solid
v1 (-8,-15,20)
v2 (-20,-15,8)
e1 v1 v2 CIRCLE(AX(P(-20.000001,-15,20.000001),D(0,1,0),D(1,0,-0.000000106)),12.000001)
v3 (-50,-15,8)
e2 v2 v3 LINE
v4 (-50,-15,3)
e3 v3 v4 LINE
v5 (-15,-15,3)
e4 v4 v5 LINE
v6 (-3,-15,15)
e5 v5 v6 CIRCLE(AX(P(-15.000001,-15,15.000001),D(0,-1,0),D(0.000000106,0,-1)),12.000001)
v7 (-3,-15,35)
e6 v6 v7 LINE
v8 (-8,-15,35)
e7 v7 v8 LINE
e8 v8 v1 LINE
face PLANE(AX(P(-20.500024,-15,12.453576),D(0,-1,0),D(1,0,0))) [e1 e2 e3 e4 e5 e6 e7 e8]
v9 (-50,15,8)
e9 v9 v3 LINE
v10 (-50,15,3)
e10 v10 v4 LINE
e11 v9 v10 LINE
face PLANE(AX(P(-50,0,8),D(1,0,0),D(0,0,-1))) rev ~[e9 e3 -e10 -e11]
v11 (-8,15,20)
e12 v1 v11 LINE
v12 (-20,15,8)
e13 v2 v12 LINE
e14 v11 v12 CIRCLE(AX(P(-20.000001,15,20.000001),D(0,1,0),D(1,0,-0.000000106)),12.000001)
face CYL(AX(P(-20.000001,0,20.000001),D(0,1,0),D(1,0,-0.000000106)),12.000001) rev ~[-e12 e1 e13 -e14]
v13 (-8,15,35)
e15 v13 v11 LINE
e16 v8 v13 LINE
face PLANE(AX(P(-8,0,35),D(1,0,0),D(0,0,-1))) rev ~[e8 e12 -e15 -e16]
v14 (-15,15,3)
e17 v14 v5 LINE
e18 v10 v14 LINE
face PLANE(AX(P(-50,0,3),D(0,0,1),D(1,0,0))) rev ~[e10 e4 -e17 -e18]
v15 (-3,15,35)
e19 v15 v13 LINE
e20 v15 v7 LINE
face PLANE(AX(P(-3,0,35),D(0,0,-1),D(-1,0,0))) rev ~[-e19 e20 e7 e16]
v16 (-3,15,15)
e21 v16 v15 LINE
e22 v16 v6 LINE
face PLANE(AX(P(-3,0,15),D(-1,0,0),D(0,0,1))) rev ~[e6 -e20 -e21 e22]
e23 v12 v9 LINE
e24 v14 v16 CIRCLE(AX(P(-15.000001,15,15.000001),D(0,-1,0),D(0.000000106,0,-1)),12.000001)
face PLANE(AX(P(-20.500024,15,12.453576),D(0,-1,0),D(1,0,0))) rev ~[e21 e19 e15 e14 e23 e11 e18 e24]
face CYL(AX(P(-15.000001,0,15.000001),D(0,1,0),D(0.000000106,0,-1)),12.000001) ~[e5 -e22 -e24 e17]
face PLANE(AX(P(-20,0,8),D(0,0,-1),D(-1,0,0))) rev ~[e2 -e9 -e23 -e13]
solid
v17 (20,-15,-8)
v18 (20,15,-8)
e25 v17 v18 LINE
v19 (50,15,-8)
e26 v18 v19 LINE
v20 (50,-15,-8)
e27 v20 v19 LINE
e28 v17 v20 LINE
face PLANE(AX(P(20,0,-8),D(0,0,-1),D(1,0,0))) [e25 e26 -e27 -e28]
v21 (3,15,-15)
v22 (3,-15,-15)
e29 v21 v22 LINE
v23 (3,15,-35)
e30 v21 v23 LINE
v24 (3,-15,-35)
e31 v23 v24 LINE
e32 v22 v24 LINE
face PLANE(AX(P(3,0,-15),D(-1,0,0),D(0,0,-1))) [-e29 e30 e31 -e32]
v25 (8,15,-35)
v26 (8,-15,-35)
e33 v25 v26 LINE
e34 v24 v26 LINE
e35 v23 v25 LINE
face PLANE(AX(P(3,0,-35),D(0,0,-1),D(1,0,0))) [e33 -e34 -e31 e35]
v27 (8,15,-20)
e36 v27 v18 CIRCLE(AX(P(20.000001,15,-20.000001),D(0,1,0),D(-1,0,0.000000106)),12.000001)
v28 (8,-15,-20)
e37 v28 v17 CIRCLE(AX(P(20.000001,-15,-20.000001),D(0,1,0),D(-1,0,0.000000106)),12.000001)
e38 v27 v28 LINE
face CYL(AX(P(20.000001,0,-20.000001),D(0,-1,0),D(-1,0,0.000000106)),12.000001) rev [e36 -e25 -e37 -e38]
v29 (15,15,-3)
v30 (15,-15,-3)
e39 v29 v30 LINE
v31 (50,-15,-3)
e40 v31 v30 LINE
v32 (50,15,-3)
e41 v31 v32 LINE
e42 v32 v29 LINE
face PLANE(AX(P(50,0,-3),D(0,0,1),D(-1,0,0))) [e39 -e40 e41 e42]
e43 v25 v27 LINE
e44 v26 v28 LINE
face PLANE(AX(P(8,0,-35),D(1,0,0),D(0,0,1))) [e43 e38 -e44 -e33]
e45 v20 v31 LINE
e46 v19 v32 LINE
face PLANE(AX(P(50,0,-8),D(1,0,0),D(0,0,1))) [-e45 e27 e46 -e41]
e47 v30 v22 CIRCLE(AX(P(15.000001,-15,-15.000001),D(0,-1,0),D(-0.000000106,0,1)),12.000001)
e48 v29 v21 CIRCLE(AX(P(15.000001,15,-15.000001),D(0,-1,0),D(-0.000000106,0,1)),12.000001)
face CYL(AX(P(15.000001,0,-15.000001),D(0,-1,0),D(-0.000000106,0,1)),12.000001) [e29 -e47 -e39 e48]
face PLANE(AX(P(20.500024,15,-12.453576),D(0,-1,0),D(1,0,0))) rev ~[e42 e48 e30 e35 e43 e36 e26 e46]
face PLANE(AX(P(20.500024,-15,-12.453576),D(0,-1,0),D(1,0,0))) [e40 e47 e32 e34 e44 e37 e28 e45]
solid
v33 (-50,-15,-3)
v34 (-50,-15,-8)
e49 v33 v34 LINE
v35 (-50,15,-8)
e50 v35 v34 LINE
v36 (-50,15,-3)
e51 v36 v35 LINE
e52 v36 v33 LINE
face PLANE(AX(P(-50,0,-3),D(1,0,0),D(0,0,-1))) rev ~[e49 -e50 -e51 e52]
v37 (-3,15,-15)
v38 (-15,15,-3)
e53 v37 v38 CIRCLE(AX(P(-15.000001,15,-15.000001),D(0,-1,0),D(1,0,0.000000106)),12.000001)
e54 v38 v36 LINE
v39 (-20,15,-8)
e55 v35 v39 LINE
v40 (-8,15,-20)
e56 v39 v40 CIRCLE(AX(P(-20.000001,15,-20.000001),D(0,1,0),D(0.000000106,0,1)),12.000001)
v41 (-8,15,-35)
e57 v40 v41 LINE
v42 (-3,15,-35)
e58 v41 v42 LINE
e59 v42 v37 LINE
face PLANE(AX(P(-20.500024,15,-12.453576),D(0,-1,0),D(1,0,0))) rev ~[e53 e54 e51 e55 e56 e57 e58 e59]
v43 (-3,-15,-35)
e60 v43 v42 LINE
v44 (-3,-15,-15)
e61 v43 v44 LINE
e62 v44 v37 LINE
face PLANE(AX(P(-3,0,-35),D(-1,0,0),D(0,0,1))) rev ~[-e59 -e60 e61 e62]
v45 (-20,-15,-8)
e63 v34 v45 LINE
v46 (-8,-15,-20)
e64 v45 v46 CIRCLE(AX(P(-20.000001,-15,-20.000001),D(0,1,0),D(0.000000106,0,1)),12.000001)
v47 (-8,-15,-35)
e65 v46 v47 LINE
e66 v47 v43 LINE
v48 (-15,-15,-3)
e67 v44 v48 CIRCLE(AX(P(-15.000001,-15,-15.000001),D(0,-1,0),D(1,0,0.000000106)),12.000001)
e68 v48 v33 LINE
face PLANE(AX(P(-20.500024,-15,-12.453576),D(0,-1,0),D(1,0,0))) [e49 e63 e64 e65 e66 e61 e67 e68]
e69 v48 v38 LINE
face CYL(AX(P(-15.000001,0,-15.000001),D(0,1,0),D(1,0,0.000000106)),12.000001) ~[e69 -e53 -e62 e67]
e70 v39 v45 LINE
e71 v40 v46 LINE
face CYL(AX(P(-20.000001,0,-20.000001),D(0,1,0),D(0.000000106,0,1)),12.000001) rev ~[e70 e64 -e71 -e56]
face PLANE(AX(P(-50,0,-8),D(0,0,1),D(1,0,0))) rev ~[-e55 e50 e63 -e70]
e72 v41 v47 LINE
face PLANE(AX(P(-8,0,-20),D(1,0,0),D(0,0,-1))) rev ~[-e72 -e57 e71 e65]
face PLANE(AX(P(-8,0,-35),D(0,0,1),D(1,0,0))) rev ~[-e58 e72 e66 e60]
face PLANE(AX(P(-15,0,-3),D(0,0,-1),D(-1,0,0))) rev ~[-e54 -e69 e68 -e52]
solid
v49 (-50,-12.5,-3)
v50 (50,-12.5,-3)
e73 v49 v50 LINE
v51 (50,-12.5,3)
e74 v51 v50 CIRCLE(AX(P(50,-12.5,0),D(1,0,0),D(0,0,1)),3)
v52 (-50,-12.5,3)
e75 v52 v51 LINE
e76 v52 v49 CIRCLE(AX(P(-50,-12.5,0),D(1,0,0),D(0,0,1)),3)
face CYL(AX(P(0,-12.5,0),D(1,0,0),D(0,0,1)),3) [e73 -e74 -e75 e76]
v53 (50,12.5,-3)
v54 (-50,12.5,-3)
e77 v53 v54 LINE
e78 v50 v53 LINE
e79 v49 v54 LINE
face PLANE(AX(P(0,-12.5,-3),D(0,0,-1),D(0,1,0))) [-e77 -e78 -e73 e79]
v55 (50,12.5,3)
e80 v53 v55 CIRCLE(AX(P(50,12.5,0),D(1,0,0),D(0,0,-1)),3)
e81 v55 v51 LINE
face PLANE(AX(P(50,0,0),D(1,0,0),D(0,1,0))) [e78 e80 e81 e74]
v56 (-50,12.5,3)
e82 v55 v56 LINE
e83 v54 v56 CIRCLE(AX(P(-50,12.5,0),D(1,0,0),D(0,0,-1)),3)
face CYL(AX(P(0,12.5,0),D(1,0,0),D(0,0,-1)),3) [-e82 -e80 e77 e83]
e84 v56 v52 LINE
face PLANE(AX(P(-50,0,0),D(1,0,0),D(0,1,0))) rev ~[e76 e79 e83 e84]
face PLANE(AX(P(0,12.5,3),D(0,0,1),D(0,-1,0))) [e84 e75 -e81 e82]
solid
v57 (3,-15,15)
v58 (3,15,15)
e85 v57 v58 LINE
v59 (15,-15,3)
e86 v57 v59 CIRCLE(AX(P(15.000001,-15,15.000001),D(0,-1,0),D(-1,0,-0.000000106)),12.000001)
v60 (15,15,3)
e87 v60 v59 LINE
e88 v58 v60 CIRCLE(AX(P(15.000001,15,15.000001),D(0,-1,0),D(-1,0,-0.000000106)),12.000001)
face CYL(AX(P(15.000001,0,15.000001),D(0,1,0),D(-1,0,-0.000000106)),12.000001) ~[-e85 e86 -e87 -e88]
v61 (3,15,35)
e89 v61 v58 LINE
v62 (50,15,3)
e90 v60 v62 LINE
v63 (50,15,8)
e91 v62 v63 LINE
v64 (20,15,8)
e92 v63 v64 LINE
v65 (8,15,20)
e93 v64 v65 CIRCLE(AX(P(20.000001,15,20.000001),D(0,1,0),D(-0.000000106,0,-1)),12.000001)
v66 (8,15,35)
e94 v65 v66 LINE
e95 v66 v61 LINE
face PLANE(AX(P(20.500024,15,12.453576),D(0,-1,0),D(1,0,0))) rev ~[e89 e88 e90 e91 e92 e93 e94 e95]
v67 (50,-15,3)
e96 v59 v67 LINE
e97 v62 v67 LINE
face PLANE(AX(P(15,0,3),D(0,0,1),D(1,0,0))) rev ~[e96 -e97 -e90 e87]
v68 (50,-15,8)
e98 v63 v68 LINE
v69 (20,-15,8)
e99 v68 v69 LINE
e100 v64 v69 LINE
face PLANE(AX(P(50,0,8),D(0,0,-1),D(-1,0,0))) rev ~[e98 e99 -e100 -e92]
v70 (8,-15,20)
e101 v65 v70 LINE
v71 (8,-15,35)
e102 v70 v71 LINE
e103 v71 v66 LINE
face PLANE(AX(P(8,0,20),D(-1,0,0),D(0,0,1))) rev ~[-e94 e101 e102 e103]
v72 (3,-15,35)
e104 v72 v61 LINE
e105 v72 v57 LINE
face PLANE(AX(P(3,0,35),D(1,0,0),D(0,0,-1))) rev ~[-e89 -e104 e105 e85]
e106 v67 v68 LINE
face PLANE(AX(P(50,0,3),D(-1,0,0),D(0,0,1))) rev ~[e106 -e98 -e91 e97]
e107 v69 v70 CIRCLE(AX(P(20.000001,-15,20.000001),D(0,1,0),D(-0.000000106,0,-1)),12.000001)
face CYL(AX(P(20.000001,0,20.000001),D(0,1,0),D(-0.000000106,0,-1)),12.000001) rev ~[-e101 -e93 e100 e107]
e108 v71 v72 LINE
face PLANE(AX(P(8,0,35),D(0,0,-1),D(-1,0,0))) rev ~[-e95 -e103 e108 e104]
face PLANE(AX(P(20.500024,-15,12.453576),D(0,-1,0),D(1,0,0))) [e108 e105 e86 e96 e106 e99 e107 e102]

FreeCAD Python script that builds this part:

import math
import FreeCAD as App
import Part
import Sketcher
from FreeCAD import Vector
Q = App.Units.Quantity

doc = App.newDocument("Part")
params = doc.addObject("Spreadsheet::Sheet", "Params")
for row, (alias, value) in enumerate([
    ("sketch1_radius", "3 mm"),
    ("sketch1_width", "25 mm"),
    ("pad1_length", "100 mm"),
    ("sketch2_radius", "12.000001 mm"),
    ("sketch2_width", "30 mm"),
    ("sketch2_width2", "35 mm"),
    ("sketch2_height", "20 mm"),
    ("pad2_length", "30 mm"),
], start=1):
    params.set(f"A{row}", alias)
    params.set(f"B{row}", "=" + value)
    params.setAlias(f"B{row}", alias)

body = doc.addObject("PartDesign::Body", "Body")

# Sketch on YZ plane
sketch1 = body.newObject("Sketcher::SketchObject", "Sketch")
sketch1.AttachmentSupport = (doc.getObject("YZ_Plane"), [""])
sketch1.MapMode = "FlatFace"
sketch1.addGeometry([
    Part.LineSegment(Vector(12.5, 3, 0), Vector(-12.5, 3, 0)),
    Part.ArcOfCircle(Part.Circle(Vector(-12.5, 0, 0), Vector(0, 0, 1), 3), math.radians(90), math.radians(270)),
    Part.LineSegment(Vector(-12.5, -3, 0), Vector(12.5, -3, 0)),
    Part.ArcOfCircle(Part.Circle(Vector(12.5, 0, 0), Vector(0, 0, 1), 3), math.radians(-90), math.radians(90)),
], False)
sketch1.addConstraint([
    Sketcher.Constraint("Tangent", 0, 2, 1, 1),
    Sketcher.Constraint("Tangent", 1, 2, 2, 1),
    Sketcher.Constraint("Tangent", 2, 2, 3, 1),
    Sketcher.Constraint("Tangent", 3, 2, 0, 1),
    Sketcher.Constraint("Horizontal", 0),
    Sketcher.Constraint("Horizontal", 2),
    Sketcher.Constraint("Symmetric", 1, 3, 3, 3, -1, 1),
    Sketcher.Constraint("Radius", 1, Q("3 mm")),
    Sketcher.Constraint("DistanceX", 0, 2, 0, 1, Q("25 mm")),
])
sketch1.setExpression("Constraints[7]", "Params.sketch1_radius")
sketch1.setExpression("Constraints[8]", "Params.sketch1_width")
pad1 = body.newObject("PartDesign::Pad", "Pad")
pad1.Profile = sketch1
pad1.setExpression("Length", "Params.pad1_length")
pad1.Midplane = True
body2 = doc.addObject("PartDesign::Body", "Body001")
body2.AllowCompound = True

# Sketch on XZ plane
sketch2 = body2.newObject("Sketcher::SketchObject", "Sketch001")
sketch2.AttachmentSupport = (doc.getObject("XZ_Plane001"), [""])
sketch2.MapMode = "FlatFace"
sketch2.addGeometry([
    Part.LineSegment(Vector(-20, 8, 0), Vector(-50, 8, 0)),  # 0
    Part.LineSegment(Vector(-50, 8, 0), Vector(-50, 3, 0)),  # 1
    Part.LineSegment(Vector(-50, 3, 0), Vector(-15, 3, 0)),  # 2
    Part.ArcOfCircle(Part.Circle(Vector(-15, 15, 0), Vector(0, 0, 1), 12), math.radians(-90), math.radians(0)),  # 3
    Part.LineSegment(Vector(-3, 15, 0), Vector(-3, 35, 0)),  # 4
    Part.LineSegment(Vector(-3, 35, 0), Vector(-8, 35, 0)),  # 5
    Part.LineSegment(Vector(-8, 35, 0), Vector(-8, 20, 0)),  # 6
    Part.ArcOfCircle(Part.Circle(Vector(-20, 20, 0), Vector(0, 0, 1), 12), math.radians(-90), math.radians(0)),  # 7
    Part.ArcOfCircle(Part.Circle(Vector(15, 15, 0), Vector(0, 0, 1), 12), math.radians(-180), math.radians(-90)),  # 8
    Part.LineSegment(Vector(15, 3, 0), Vector(50, 3, 0)),  # 9
    Part.LineSegment(Vector(50, 3, 0), Vector(50, 8, 0)),  # 10
    Part.LineSegment(Vector(50, 8, 0), Vector(20, 8, 0)),  # 11
    Part.ArcOfCircle(Part.Circle(Vector(20, 20, 0), Vector(0, 0, 1), 12), math.radians(-180), math.radians(-90)),  # 12
    Part.LineSegment(Vector(8, 20, 0), Vector(8, 35, 0)),  # 13
    Part.LineSegment(Vector(8, 35, 0), Vector(3, 35, 0)),  # 14
    Part.LineSegment(Vector(3, 35, 0), Vector(3, 15, 0)),  # 15
    Part.LineSegment(Vector(-15, -3, 0), Vector(-50, -3, 0)),  # 16
    Part.LineSegment(Vector(-50, -3, 0), Vector(-50, -8, 0)),  # 17
    Part.LineSegment(Vector(-50, -8, 0), Vector(-20, -8, 0)),  # 18
    Part.ArcOfCircle(Part.Circle(Vector(-20, -20, 0), Vector(0, 0, 1), 12), math.radians(0), math.radians(90)),  # 19
    Part.LineSegment(Vector(-8, -20, 0), Vector(-8, -35, 0)),  # 20
    Part.LineSegment(Vector(-8, -35, 0), Vector(-3, -35, 0)),  # 21
    Part.LineSegment(Vector(-3, -35, 0), Vector(-3, -15, 0)),  # 22
    Part.ArcOfCircle(Part.Circle(Vector(-15, -15, 0), Vector(0, 0, 1), 12), math.radians(0), math.radians(90)),  # 23
    Part.LineSegment(Vector(50, -3, 0), Vector(15, -3, 0)),  # 24
    Part.ArcOfCircle(Part.Circle(Vector(15, -15, 0), Vector(0, 0, 1), 12), math.radians(90), math.radians(180)),  # 25
    Part.LineSegment(Vector(3, -15, 0), Vector(3, -35, 0)),  # 26
    Part.LineSegment(Vector(3, -35, 0), Vector(8, -35, 0)),  # 27
    Part.LineSegment(Vector(8, -35, 0), Vector(8, -20, 0)),  # 28
    Part.ArcOfCircle(Part.Circle(Vector(20, -20, 0), Vector(0, 0, 1), 12), math.radians(90), math.radians(180)),  # 29
    Part.LineSegment(Vector(20, -8, 0), Vector(50, -8, 0)),  # 30
    Part.LineSegment(Vector(50, -8, 0), Vector(50, -3, 0)),  # 31
], False)
sketch2.addConstraint([
    Sketcher.Constraint("Coincident", 0, 2, 1, 1),
    Sketcher.Constraint("Coincident", 1, 2, 2, 1),
    Sketcher.Constraint("Tangent", 2, 2, 3, 1),
    Sketcher.Constraint("Tangent", 3, 2, 4, 1),
    Sketcher.Constraint("Coincident", 4, 2, 5, 1),
    Sketcher.Constraint("Coincident", 5, 2, 6, 1),
    Sketcher.Constraint("Tangent", 6, 2, 7, 2),
    Sketcher.Constraint("Tangent", 7, 1, 0, 1),
    Sketcher.Constraint("Tangent", 8, 2, 9, 1),
    Sketcher.Constraint("Coincident", 9, 2, 10, 1),
    Sketcher.Constraint("Coincident", 10, 2, 11, 1),
    Sketcher.Constraint("Tangent", 11, 2, 12, 2),
    Sketcher.Constraint("Tangent", 12, 1, 13, 1),
    Sketcher.Constraint("Coincident", 13, 2, 14, 1),
    Sketcher.Constraint("Coincident", 14, 2, 15, 1),
    Sketcher.Constraint("Tangent", 15, 2, 8, 1),
    Sketcher.Constraint("Coincident", 16, 2, 17, 1),
    Sketcher.Constraint("Coincident", 17, 2, 18, 1),
    Sketcher.Constraint("Tangent", 18, 2, 19, 2),
    Sketcher.Constraint("Tangent", 19, 1, 20, 1),
    Sketcher.Constraint("Coincident", 20, 2, 21, 1),
    Sketcher.Constraint("Coincident", 21, 2, 22, 1),
    Sketcher.Constraint("Tangent", 22, 2, 23, 1),
    Sketcher.Constraint("Tangent", 23, 2, 16, 1),
    Sketcher.Constraint("Tangent", 24, 2, 25, 1),
    Sketcher.Constraint("Tangent", 25, 2, 26, 1),
    Sketcher.Constraint("Coincident", 26, 2, 27, 1),
    Sketcher.Constraint("Coincident", 27, 2, 28, 1),
    Sketcher.Constraint("Tangent", 28, 2, 29, 2),
    Sketcher.Constraint("Tangent", 29, 1, 30, 1),
    Sketcher.Constraint("Coincident", 30, 2, 31, 1),
    Sketcher.Constraint("Coincident", 31, 2, 24, 1),
    Sketcher.Constraint("Horizontal", 0),
    Sketcher.Constraint("Vertical", 1),
    Sketcher.Constraint("Horizontal", 2),
    Sketcher.Constraint("Vertical", 4),
    Sketcher.Constraint("Horizontal", 5),
    Sketcher.Constraint("Vertical", 6),
    Sketcher.Constraint("Horizontal", 9),
    Sketcher.Constraint("Vertical", 10),
    Sketcher.Constraint("Horizontal", 11),
    Sketcher.Constraint("Vertical", 13),
    Sketcher.Constraint("Horizontal", 14),
    Sketcher.Constraint("Vertical", 15),
    Sketcher.Constraint("Horizontal", 16),
    Sketcher.Constraint("Vertical", 17),
    Sketcher.Constraint("Horizontal", 18),
    Sketcher.Constraint("Vertical", 20),
    Sketcher.Constraint("Horizontal", 21),
    Sketcher.Constraint("Vertical", 22),
    Sketcher.Constraint("Horizontal", 24),
    Sketcher.Constraint("Vertical", 26),
    Sketcher.Constraint("Horizontal", 27),
    Sketcher.Constraint("Vertical", 28),
    Sketcher.Constraint("Horizontal", 30),
    Sketcher.Constraint("Vertical", 31),
    Sketcher.Constraint("Equal", 3, 7),
    Sketcher.Constraint("Equal", 7, 8),
    Sketcher.Constraint("Equal", 8, 12),
    Sketcher.Constraint("Equal", 12, 19),
    Sketcher.Constraint("Equal", 19, 23),
    Sketcher.Constraint("Equal", 23, 25),
    Sketcher.Constraint("Equal", 25, 29),
    Sketcher.Constraint("Symmetric", 12, 3, 19, 3, -1, 1),
    Sketcher.Constraint("Symmetric", 8, 3, 23, 3, -1, 1),
    Sketcher.Constraint("Symmetric", 3, 3, 25, 3, -1, 1),
    Sketcher.Constraint("Symmetric", 7, 3, 29, 3, -1, 1),
    Sketcher.Constraint("Symmetric", 3, 3, 8, 3, -2),
    Sketcher.Constraint("Symmetric", 7, 3, 12, 3, -2),
    Sketcher.Constraint("Horizontal", 5, 2, 13, 2),
    Sketcher.Constraint("Horizontal", 21, 2, 26, 2),
    Sketcher.Constraint("Vertical", 1, 2, 16, 2),
    Sketcher.Constraint("Vertical", 10, 2, 30, 2),
    Sketcher.Constraint("Equal", 2, 9),
    Sketcher.Constraint("Equal", 27, 1),
    Sketcher.Constraint("Equal", 13, 20),
    Sketcher.Constraint("Radius", 3, Q("12.000001 mm")),
    Sketcher.Constraint("DistanceX", 0, 2, 0, 1, Q("30 mm")),
    Sketcher.Constraint("DistanceX", 2, 1, 2, 2, Q("35 mm")),
    Sketcher.Constraint("DistanceY", 4, 1, 4, 2, Q("20 mm")),
    Sketcher.Constraint("DistanceX", 3, 3, -1, 1, Q("15.000001 mm")),
    Sketcher.Constraint("DistanceY", -1, 1, 3, 3, Q("15.000001 mm")),
])
sketch2.setExpression("Constraints[76]", "Params.sketch2_radius")
sketch2.setExpression("Constraints[77]", "Params.sketch2_width")
sketch2.setExpression("Constraints[78]", "Params.sketch2_width2")
sketch2.setExpression("Constraints[79]", "Params.sketch2_height")
pad2 = body2.newObject("PartDesign::Pad", "Pad001")
pad2.Profile = sketch2
pad2.setExpression("Length", "Params.pad2_length")
pad2.Midplane = True

doc.recompute()
